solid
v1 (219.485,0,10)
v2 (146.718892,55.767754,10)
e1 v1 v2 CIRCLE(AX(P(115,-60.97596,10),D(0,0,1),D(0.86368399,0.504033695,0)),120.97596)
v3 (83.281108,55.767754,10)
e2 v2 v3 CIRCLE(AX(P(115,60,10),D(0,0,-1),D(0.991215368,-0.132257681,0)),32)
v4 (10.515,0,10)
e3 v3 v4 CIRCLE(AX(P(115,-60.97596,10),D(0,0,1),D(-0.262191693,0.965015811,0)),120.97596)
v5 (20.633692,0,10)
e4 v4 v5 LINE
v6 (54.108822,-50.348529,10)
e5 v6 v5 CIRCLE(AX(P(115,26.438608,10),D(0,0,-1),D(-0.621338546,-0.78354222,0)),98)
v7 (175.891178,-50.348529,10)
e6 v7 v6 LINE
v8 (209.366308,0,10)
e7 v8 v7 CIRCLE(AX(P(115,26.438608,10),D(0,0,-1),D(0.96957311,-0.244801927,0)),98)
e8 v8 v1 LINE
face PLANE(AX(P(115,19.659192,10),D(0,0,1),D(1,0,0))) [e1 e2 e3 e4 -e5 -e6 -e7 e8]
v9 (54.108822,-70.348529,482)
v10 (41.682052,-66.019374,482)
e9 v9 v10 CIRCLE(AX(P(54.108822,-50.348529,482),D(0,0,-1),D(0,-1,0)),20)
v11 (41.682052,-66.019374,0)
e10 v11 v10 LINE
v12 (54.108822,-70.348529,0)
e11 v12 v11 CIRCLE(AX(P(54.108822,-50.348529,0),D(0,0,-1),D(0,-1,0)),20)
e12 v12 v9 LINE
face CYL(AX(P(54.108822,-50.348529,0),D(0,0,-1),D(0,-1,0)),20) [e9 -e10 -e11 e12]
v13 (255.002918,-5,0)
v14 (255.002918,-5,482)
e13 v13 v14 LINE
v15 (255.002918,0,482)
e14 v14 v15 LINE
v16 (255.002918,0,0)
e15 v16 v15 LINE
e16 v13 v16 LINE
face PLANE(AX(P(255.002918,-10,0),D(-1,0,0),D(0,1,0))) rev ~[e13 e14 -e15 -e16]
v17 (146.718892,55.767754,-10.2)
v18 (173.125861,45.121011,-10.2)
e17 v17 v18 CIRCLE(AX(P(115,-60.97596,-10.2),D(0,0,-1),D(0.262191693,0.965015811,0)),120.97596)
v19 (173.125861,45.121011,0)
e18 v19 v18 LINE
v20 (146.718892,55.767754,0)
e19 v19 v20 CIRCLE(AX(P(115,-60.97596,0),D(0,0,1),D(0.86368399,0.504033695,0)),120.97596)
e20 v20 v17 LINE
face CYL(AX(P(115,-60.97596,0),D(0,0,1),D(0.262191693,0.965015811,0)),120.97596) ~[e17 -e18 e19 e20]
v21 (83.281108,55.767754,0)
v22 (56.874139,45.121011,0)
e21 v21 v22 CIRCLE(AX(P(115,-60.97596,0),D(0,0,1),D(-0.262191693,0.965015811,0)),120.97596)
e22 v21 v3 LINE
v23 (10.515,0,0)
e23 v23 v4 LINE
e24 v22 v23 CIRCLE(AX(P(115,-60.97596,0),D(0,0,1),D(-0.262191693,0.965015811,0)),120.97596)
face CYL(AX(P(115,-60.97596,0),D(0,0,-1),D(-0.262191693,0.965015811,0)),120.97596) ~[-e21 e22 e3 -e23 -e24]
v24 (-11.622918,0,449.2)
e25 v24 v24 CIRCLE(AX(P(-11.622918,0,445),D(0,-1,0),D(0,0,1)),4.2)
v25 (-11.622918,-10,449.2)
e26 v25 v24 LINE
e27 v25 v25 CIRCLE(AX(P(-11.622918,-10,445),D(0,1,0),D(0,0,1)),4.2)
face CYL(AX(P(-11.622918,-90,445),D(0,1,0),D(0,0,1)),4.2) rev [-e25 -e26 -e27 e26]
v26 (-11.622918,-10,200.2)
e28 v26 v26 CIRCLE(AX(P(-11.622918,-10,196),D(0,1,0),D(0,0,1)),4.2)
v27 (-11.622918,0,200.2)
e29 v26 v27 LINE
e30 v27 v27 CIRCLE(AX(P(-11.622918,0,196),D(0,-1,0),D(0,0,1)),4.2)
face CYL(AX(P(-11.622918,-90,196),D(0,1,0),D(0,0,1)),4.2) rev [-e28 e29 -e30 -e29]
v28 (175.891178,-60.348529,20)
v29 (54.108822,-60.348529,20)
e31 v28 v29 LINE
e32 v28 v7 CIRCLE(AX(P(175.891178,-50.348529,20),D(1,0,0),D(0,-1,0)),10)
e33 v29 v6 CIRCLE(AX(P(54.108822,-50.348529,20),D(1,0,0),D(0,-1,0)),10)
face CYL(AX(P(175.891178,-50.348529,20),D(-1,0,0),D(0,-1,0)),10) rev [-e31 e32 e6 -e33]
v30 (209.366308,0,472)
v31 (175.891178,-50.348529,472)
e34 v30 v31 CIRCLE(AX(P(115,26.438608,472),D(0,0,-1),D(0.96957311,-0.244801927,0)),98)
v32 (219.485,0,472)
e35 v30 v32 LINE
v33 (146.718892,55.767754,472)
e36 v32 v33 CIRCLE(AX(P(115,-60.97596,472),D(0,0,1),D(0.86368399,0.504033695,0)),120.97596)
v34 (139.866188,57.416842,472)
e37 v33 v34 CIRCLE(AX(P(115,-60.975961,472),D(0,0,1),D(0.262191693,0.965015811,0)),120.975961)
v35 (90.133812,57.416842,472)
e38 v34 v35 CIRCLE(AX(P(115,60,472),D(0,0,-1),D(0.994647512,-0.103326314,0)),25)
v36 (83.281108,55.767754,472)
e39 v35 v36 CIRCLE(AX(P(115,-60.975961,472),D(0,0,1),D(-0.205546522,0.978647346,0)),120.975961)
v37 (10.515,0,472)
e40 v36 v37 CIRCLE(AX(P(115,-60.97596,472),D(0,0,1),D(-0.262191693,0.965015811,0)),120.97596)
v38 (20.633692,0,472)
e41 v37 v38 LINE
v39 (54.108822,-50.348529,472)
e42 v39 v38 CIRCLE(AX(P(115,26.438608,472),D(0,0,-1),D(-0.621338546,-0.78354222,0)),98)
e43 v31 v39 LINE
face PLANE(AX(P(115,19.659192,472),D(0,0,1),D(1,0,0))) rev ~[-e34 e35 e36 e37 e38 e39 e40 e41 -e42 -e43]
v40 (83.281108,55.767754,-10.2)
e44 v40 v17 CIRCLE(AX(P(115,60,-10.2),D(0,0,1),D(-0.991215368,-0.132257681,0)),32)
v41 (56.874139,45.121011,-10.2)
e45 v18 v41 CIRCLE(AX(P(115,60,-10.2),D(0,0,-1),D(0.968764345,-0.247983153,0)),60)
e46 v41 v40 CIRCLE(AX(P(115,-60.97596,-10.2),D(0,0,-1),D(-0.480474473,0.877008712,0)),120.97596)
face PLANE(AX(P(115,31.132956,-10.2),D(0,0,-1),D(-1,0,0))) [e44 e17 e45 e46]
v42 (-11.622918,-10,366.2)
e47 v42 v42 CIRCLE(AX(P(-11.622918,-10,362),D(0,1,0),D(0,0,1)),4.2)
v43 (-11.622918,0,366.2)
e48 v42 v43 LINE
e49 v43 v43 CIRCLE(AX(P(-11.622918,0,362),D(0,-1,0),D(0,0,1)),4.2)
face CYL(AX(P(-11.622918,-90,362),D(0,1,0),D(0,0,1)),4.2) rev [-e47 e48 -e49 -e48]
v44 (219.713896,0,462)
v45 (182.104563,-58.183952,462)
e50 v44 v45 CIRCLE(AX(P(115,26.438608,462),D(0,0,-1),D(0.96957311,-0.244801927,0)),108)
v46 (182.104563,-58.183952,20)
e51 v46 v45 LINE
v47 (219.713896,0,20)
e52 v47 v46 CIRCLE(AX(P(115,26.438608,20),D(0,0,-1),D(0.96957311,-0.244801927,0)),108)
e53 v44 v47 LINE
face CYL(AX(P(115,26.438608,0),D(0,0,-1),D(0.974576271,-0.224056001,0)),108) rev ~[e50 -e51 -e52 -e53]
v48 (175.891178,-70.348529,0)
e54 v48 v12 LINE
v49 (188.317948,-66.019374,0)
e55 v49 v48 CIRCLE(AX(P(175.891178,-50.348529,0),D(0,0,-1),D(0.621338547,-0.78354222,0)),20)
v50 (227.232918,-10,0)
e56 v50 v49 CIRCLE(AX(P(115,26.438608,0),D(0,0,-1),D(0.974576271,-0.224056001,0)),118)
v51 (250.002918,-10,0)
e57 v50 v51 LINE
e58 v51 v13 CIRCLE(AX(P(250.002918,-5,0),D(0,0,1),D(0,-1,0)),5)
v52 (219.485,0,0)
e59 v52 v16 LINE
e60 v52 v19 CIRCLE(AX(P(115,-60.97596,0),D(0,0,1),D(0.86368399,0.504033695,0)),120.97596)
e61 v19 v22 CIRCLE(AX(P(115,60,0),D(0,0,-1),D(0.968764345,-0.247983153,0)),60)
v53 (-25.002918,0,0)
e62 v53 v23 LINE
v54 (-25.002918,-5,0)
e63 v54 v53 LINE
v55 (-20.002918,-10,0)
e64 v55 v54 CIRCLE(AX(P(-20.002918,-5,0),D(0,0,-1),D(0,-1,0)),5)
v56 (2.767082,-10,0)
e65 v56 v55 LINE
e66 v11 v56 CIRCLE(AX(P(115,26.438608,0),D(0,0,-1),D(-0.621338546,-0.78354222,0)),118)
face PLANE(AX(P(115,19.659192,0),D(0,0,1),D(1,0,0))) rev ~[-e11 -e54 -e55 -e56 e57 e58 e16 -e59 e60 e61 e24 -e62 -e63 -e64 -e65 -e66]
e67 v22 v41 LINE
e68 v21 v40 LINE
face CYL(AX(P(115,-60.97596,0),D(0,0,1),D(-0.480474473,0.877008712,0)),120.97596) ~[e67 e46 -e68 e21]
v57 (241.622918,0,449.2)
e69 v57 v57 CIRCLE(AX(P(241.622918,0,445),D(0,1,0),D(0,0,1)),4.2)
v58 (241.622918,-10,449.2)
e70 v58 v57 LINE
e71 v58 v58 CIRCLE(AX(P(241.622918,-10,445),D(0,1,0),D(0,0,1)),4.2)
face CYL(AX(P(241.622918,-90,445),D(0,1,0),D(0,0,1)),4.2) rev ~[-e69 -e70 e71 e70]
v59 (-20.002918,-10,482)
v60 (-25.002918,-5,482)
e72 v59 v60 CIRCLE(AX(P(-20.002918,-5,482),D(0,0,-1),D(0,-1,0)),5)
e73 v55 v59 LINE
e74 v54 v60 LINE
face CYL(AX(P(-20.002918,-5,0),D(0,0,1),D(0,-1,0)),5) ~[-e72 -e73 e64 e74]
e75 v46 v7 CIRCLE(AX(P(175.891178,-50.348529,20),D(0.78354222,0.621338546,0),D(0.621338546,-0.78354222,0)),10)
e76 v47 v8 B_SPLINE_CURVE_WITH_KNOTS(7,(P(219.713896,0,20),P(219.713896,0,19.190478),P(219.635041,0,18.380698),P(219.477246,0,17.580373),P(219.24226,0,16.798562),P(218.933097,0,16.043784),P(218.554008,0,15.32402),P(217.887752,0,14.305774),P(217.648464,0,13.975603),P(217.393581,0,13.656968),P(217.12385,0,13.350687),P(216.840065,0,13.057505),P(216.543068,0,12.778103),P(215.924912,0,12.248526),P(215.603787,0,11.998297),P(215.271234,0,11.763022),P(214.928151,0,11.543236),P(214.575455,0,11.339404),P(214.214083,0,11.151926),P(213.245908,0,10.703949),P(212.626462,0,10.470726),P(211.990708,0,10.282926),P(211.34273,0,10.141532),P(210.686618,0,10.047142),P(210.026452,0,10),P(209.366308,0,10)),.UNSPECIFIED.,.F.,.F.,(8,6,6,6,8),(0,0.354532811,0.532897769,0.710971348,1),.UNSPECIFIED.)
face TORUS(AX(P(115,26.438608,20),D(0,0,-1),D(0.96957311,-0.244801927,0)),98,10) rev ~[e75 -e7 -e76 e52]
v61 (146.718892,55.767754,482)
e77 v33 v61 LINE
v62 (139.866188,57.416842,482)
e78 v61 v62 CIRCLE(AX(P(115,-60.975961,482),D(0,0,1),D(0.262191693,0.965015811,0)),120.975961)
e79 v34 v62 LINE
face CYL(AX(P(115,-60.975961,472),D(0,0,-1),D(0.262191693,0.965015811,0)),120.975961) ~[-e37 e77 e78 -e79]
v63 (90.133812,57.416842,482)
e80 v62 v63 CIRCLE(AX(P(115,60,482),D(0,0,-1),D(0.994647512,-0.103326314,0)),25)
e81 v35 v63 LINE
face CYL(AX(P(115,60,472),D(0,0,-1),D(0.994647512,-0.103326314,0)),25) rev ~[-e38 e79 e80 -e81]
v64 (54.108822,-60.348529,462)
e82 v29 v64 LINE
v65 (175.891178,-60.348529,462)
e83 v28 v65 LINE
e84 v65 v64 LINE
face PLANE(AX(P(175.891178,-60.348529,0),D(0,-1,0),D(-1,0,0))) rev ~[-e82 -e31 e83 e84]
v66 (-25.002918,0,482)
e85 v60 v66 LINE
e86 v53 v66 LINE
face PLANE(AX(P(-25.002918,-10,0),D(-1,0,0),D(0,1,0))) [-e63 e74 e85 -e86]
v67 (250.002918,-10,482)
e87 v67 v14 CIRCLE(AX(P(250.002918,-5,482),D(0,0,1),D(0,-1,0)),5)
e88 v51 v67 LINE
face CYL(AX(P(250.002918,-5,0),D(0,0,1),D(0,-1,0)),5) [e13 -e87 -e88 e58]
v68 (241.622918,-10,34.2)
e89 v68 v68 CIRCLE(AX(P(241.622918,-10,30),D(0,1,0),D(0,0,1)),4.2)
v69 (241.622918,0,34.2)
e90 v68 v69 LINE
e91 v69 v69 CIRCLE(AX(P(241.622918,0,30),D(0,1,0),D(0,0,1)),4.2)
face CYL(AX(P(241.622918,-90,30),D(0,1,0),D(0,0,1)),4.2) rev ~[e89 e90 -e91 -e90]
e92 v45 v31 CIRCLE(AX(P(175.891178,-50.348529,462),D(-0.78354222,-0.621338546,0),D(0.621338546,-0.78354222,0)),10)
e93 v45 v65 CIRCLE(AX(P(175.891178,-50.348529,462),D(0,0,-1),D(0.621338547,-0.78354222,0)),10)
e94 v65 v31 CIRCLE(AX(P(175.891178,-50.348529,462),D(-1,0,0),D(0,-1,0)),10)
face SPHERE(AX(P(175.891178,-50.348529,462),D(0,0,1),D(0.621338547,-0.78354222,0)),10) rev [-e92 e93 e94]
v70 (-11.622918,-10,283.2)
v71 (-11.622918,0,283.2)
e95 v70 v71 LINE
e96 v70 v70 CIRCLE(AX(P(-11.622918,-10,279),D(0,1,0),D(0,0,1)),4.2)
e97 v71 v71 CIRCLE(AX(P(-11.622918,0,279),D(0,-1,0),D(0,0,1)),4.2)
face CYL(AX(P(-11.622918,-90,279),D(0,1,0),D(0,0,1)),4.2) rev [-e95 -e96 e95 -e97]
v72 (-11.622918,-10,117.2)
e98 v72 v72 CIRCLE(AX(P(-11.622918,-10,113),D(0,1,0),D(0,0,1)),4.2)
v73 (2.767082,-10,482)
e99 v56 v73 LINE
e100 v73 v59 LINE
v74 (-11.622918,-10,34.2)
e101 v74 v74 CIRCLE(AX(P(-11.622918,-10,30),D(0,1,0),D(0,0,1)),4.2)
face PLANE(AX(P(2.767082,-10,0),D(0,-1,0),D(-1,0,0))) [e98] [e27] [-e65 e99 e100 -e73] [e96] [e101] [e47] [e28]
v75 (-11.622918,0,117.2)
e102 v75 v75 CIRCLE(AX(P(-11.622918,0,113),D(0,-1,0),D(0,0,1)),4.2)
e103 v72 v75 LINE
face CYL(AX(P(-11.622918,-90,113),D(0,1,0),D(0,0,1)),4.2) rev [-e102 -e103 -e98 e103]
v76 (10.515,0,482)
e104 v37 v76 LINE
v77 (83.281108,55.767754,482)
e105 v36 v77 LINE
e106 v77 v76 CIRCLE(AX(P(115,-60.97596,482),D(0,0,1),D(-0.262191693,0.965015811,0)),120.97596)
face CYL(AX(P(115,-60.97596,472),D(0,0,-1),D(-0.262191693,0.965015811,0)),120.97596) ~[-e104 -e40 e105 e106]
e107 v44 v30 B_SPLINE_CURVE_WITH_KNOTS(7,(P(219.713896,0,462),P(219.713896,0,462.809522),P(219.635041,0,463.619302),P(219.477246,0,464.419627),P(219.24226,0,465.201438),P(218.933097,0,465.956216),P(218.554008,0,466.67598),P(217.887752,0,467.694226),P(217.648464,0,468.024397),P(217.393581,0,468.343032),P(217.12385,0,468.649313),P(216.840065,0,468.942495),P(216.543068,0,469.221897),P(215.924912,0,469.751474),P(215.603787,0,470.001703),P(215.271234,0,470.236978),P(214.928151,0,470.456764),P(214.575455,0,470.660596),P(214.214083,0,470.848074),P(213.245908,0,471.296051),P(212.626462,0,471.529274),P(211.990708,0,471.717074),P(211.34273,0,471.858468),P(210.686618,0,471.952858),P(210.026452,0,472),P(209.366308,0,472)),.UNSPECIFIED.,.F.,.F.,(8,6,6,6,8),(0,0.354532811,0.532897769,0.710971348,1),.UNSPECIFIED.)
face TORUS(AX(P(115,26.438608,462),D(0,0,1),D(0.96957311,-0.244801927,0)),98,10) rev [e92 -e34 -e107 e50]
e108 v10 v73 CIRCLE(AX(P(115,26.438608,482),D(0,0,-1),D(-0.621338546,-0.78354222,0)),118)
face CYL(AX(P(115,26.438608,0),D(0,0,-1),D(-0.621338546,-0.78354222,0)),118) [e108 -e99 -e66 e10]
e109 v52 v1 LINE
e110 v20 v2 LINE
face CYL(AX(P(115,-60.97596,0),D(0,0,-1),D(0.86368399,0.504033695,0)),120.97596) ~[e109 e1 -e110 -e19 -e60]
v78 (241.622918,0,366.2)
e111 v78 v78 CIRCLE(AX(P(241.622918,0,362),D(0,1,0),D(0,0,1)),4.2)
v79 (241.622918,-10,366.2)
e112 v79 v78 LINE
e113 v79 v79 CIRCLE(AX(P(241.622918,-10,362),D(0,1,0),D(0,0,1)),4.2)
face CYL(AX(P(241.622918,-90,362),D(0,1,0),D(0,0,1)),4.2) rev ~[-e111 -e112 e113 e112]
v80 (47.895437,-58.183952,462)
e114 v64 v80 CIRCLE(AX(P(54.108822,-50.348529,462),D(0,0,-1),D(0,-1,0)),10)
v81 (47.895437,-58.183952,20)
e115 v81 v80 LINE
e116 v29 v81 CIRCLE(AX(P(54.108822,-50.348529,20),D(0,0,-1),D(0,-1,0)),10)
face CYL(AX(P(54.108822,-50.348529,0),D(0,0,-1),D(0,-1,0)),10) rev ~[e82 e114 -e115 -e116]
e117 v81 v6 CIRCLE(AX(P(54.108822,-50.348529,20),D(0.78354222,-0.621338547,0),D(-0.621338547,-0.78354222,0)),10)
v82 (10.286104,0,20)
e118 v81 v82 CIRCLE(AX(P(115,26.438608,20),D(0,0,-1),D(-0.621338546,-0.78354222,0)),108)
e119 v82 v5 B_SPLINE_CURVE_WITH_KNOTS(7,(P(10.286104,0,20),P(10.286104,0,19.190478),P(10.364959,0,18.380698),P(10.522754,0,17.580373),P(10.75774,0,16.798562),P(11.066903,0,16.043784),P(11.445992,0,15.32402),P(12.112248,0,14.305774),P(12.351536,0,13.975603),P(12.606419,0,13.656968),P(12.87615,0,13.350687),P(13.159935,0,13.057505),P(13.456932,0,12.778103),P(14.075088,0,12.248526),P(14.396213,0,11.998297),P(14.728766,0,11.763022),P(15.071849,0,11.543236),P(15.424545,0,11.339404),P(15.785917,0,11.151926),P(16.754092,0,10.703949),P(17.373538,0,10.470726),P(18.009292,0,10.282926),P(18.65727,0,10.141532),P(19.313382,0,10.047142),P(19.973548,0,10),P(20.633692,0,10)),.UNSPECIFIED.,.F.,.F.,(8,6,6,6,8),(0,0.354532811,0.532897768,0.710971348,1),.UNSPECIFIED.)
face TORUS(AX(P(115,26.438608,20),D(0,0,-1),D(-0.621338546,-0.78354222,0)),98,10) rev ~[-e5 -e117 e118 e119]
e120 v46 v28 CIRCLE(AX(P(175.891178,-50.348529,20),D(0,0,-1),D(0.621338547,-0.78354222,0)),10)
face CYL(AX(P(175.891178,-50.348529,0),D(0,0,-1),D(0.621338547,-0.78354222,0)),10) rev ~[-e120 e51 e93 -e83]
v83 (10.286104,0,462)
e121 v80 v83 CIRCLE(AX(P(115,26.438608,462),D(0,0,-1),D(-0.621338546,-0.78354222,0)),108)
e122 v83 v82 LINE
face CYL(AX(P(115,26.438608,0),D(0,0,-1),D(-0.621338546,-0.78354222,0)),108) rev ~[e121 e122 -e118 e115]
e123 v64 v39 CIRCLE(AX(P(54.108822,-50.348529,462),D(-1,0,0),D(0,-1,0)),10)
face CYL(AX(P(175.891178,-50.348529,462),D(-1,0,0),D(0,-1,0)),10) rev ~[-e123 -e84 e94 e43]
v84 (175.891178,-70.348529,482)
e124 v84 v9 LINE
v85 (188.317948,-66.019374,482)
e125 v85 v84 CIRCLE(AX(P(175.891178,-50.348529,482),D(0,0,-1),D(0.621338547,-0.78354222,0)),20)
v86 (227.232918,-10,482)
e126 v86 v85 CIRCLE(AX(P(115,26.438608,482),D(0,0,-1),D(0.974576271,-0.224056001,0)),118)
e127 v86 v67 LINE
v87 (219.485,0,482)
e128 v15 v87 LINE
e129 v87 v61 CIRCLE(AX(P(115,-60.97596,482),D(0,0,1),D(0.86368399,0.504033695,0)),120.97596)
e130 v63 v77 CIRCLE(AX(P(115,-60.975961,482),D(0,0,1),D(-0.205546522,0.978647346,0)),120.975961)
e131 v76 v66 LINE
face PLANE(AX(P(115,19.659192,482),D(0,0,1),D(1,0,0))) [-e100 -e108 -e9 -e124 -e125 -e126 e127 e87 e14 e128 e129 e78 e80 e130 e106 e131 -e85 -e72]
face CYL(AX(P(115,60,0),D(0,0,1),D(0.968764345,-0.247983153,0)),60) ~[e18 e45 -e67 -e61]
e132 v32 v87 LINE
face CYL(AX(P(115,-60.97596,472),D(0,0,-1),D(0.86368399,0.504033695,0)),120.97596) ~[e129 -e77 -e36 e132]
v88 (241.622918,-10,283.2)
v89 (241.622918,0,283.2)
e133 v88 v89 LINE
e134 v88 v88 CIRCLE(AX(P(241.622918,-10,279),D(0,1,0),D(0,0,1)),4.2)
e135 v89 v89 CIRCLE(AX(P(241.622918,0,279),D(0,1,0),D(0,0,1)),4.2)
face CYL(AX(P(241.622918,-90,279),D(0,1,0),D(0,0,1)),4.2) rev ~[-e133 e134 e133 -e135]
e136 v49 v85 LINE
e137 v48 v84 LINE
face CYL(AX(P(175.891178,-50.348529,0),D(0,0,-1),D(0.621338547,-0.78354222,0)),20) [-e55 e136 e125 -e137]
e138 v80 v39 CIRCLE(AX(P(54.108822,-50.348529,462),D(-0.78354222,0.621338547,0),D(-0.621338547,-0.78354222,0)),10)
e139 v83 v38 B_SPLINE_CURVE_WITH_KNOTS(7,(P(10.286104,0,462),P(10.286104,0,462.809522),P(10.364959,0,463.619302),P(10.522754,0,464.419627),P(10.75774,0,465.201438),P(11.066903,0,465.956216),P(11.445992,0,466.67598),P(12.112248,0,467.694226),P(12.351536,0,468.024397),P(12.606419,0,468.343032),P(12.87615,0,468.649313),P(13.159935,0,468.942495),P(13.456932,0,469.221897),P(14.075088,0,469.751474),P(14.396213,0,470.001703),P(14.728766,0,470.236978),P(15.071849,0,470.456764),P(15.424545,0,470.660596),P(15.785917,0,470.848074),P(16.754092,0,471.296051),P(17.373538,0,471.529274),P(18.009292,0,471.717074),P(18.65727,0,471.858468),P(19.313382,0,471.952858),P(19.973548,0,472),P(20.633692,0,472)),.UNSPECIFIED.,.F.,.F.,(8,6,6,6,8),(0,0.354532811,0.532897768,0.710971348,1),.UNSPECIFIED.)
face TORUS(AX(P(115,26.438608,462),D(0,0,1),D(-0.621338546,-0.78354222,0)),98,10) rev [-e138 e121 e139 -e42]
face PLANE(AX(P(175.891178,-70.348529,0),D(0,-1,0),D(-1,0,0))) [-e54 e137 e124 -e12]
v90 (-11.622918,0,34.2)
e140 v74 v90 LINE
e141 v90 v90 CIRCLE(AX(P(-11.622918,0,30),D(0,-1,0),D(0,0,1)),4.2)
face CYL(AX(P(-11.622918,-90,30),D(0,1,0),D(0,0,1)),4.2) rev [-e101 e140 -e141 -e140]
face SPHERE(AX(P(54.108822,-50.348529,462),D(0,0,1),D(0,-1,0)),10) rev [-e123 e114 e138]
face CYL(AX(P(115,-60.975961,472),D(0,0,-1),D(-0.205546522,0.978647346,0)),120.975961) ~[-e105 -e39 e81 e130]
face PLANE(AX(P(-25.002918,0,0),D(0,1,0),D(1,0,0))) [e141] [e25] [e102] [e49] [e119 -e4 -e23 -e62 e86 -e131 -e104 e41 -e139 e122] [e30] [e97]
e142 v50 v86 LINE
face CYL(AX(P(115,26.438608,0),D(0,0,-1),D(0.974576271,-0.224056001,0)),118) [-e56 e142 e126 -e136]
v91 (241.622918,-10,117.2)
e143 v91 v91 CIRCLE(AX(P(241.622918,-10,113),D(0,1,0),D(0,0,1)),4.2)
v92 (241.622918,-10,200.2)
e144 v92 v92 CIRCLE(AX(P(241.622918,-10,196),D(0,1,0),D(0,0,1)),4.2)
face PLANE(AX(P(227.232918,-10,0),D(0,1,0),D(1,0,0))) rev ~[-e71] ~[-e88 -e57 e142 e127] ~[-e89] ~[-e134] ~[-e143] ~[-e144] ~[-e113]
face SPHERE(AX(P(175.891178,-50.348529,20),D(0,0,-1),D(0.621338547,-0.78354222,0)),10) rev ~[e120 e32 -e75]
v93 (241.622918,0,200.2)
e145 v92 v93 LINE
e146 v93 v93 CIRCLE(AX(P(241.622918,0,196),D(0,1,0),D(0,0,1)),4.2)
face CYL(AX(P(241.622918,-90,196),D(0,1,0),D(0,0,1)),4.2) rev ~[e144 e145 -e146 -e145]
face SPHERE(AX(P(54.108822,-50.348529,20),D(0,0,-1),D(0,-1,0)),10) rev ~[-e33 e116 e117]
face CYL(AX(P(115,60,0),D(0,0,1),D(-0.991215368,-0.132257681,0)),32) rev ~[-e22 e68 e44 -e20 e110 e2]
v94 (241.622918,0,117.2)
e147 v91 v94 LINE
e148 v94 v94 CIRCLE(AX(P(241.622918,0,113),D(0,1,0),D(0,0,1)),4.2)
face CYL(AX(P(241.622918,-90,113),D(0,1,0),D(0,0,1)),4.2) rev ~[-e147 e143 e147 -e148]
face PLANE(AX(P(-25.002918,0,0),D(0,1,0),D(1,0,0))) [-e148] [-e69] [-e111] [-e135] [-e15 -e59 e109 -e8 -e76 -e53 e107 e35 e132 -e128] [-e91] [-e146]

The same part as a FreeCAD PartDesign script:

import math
import FreeCAD as App
import Part
import Sketcher
Q = App.Units.Quantity


def edges_at(feature, points):
    """Names of the edges that pass closest to the given points."""
    edges = feature.Shape.Edges
    near = lambda p: min(range(len(edges)), key=lambda i: edges[i].distToShape(Part.Vertex(*p))[0])
    return sorted({f"Edge{near(p) + 1}" for p in points})


def faces_at(feature, points):
    """Names of the faces that lie closest to the given points."""
    faces = feature.Shape.Faces
    near = lambda p: min(range(len(faces)), key=lambda i: faces[i].distToShape(Part.Vertex(*p))[0])
    return sorted({f"Face{near(p) + 1}" for p in points})


def add_polygon(sketch, points):
    """Adds a closed chain of lines whose ends are joined by coincident constraints."""
    first, n = sketch.GeometryCount, len(points)
    for a, b in zip(points, points[1:] + points[:1]):
        sketch.addGeometry(Part.LineSegment(App.Vector(*a, 0), App.Vector(*b, 0)), False)
    for i in range(n):
        sketch.addConstraint(Sketcher.Constraint("Coincident", first + i, 2, first + (i + 1) % n, 1))

doc = App.newDocument("Part")
params = doc.addObject("Spreadsheet::Sheet", "Params")
for row, (alias, value) in enumerate([
    ("sketch1_radius", "118 mm"),
    ("sketch1_radius2", "20 mm"),
    ("sketch1_width", "230 mm"),
    ("pad1_length", "482 mm"),
    ("thickness_wall", "10 mm"),
    ("fillet_radius", "10 mm"),
    ("fillet2_radius", "10 mm"),
    ("sketch2_radius", "118.000001 mm"),
    ("sketch2_height", "10 mm"),
    ("sketch2_width", "27.77 mm"),
    ("pad2_length", "482 mm"),
    ("fillet3_radius", "5 mm"),
    ("sketch3_radius", "32 mm"),
    ("sketch3_width", "208.97 mm"),
    ("pad3_length", "10 mm"),
    ("sketch4_radius", "60 mm"),
    ("sketch4_radius2", "32 mm"),
    ("pad4_length", "10.2 mm"),
    ("sketch5_radius", "25 mm"),
    ("sketch5_width", "208.97 mm"),
    ("pad5_length", "10 mm"),
    ("sketch6_width", "90 mm"),
    ("sketch6_height", "4.2 mm"),
    ("groove_angle", "360 deg"),
    ("linearpattern_pitch", "83 mm"),
    ("linearpattern2_pitch", "166 mm"),
    ("linearpattern3_pitch", "249 mm"),
    ("linearpattern4_pitch", "332 mm"),
    ("linearpattern5_pitch", "415 mm"),
    ("sketch7_width", "90 mm"),
    ("sketch7_height", "4.2 mm"),
    ("groove2_angle", "360 deg"),
    ("sketch8_width", "90 mm"),
    ("sketch8_height", "4.2 mm"),
    ("groove3_angle", "360 deg"),
    ("sketch9_width", "90 mm"),
    ("sketch9_height", "4.2 mm"),
    ("groove4_angle", "360 deg"),
    ("sketch10_width", "90 mm"),
    ("sketch10_height", "4.2 mm"),
    ("groove5_angle", "360 deg"),
    ("sketch11_width", "90 mm"),
    ("sketch11_height", "4.2 mm"),
    ("groove6_angle", "360 deg"),
], start=1):
    params.set(f"A{row}", alias)
    params.set(f"B{row}", "=" + value)
    params.setAlias(f"B{row}", alias)

body = doc.addObject("PartDesign::Body", "Body")

sketch1 = doc.addObject("Sketcher::SketchObject", "Sketch")
body.addObject(sketch1)
sketch1.AttachmentSupport = (doc.XY_Plane, [""])
sketch1.MapMode = "FlatFace"
sketch1.addGeometry(Part.LineSegment(App.Vector(230, 0, 0), App.Vector(0, 0, 0)), False)
sketch1.addGeometry(Part.ArcOfCircle(Part.Circle(App.Vector(115, 26, 0), App.Vector(0, 0, 1), 118), math.radians(-167), math.radians(-128)), False)
sketch1.addGeometry(Part.ArcOfCircle(Part.Circle(App.Vector(54, -50, 0), App.Vector(0, 0, 1), 20), math.radians(-128), math.radians(-90)), False)
sketch1.addGeometry(Part.LineSegment(App.Vector(54, -70, 0), App.Vector(176, -70, 0)), False)
sketch1.addGeometry(Part.ArcOfCircle(Part.Circle(App.Vector(176, -50, 0), App.Vector(0, 0, 1), 20), math.radians(-90), math.radians(-52)), False)
sketch1.addGeometry(Part.ArcOfCircle(Part.Circle(App.Vector(115, 26, 0), App.Vector(0, 0, 1), 118), math.radians(-52), math.radians(-13)), False)
sketch1.addConstraint(Sketcher.Constraint("Coincident", 0, 2, 1, 1))
sketch1.addConstraint(Sketcher.Constraint("Tangent", 1, 2, 2, 1))
sketch1.addConstraint(Sketcher.Constraint("Tangent", 2, 2, 3, 1))
sketch1.addConstraint(Sketcher.Constraint("Tangent", 3, 2, 4, 1))
sketch1.addConstraint(Sketcher.Constraint("Tangent", 4, 2, 5, 1))
sketch1.addConstraint(Sketcher.Constraint("Coincident", 5, 2, 0, 1))
sketch1.addConstraint(Sketcher.Constraint("Horizontal", 0))
sketch1.addConstraint(Sketcher.Constraint("Horizontal", 3))
sketch1.addConstraint(Sketcher.Constraint("Coincident", 0, 2, -1, 1))
sketch1.addConstraint(Sketcher.Constraint("Coincident", 5, 3, 1, 3))
sketch1.addConstraint(Sketcher.Constraint("Equal", 2, 4))
sketch1.addConstraint(Sketcher.Constraint("Equal", 1, 5))
sketch1.addConstraint(Sketcher.Constraint("Radius", 1, Q("118 mm")))
sketch1.addConstraint(Sketcher.Constraint("Radius", 2, Q("20 mm")))
sketch1.addConstraint(Sketcher.Constraint("DistanceX", 0, 2, 0, 1, Q("230 mm")))
sketch1.addConstraint(Sketcher.Constraint("DistanceX", 3, 1, 3, 2, Q("121.782355 mm")))
sketch1.setExpression("Constraints[12]", "Params.sketch1_radius")
sketch1.setExpression("Constraints[13]", "Params.sketch1_radius2")
sketch1.setExpression("Constraints[14]", "Params.sketch1_width")
pad1 = doc.addObject("PartDesign::Pad", "Pad")
body.addObject(pad1)
pad1.Profile = sketch1
pad1.setExpression("Length", "Params.pad1_length")
doc.recompute()

thickness = doc.addObject("PartDesign::Thickness", "Thickness")
body.addObject(thickness)
thickness.Base = (pad1, faces_at(pad1, [(115, 0, 241)]))
thickness.setExpression("Value", "Params.thickness_wall")
thickness.Reversed = True
thickness.Join = "Intersection"
doc.recompute()

fillet = doc.addObject("PartDesign::Fillet", "Fillet")
body.addObject(fillet)
fillet.Base = (thickness, edges_at(thickness, [
    (24.299, -32.19, 472),
    (50.819, -59.792, 472),
    (115, -60.349, 472),
    (179.181, -59.792, 472),
    (205.701, -32.19, 472),
]))
fillet.setExpression("Radius", "Params.fillet_radius")
doc.recompute()

fillet2 = doc.addObject("PartDesign::Fillet", "Fillet001")
body.addObject(fillet2)
fillet2.Base = (fillet, edges_at(fillet, [
    (24.299, -32.19, 10),
    (50.819, -59.792, 10),
    (115, -60.349, 10),
    (179.181, -59.792, 10),
    (205.701, -32.19, 10),
]))
fillet2.setExpression("Radius", "Params.fillet2_radius")

sketch2 = doc.addObject("Sketcher::SketchObject", "Sketch001")
body.addObject(sketch2)
sketch2.AttachmentSupport = (doc.XY_Plane, [""])
sketch2.MapMode = "FlatFace"
sketch2.addGeometry(Part.LineSegment(App.Vector(-25, -10, 0), App.Vector(3, -10, 0)), False)
sketch2.addGeometry(Part.ArcOfCircle(Part.Circle(App.Vector(115, 26, 0), App.Vector(0, 0, 1), 118), math.radians(-167.05), math.radians(-162.01)), False)
sketch2.addGeometry(Part.LineSegment(App.Vector(0, 0, 0), App.Vector(-25, 0, 0)), False)
sketch2.addGeometry(Part.LineSegment(App.Vector(-25, 0, 0), App.Vector(-25, -10, 0)), False)
sketch2.addGeometry(Part.LineSegment(App.Vector(255, 0, 0), App.Vector(230, 0, 0)), False)
sketch2.addGeometry(Part.ArcOfCircle(Part.Circle(App.Vector(115, 26, 0), App.Vector(0, 0, 1), 118), math.radians(-17.99), math.radians(-12.95)), False)
sketch2.addGeometry(Part.LineSegment(App.Vector(227, -10, 0), App.Vector(255, -10, 0)), False)
sketch2.addGeometry(Part.LineSegment(App.Vector(255, -10, 0), App.Vector(255, 0, 0)), False)
sketch2.addConstraint(Sketcher.Constraint("Coincident", 0, 2, 1, 2))
sketch2.addConstraint(Sketcher.Constraint("Coincident", 1, 1, 2, 1))
sketch2.addConstraint(Sketcher.Constraint("Coincident", 2, 2, 3, 1))
sketch2.addConstraint(Sketcher.Constraint("Coincident", 3, 2, 0, 1))
sketch2.addConstraint(Sketcher.Constraint("Coincident", 4, 2, 5, 2))
sketch2.addConstraint(Sketcher.Constraint("Coincident", 5, 1, 6, 1))
sketch2.addConstraint(Sketcher.Constraint("Coincident", 6, 2, 7, 1))
sketch2.addConstraint(Sketcher.Constraint("Coincident", 7, 2, 4, 1))
sketch2.addConstraint(Sketcher.Constraint("Horizontal", 0))
sketch2.addConstraint(Sketcher.Constraint("Horizontal", 2))
sketch2.addConstraint(Sketcher.Constraint("Vertical", 3))
sketch2.addConstraint(Sketcher.Constraint("Horizontal", 4))
sketch2.addConstraint(Sketcher.Constraint("Horizontal", 6))
sketch2.addConstraint(Sketcher.Constraint("Vertical", 7))
sketch2.addConstraint(Sketcher.Constraint("Coincident", 1, 1, -1, 1))
sketch2.addConstraint(Sketcher.Constraint("Coincident", 5, 3, 1, 3))
sketch2.addConstraint(Sketcher.Constraint("Equal", 1, 5))
sketch2.addConstraint(Sketcher.Constraint("PointOnObject", 4, 2, -1))
sketch2.addConstraint(Sketcher.Constraint("Horizontal", 3, 2, 5, 1))
sketch2.addConstraint(Sketcher.Constraint("Equal", 2, 4))
sketch2.addConstraint(Sketcher.Constraint("Radius", 1, Q("118.000001 mm")))
sketch2.addConstraint(Sketcher.Constraint("DistanceY", 3, 2, 3, 1, Q("10 mm")))
sketch2.addConstraint(Sketcher.Constraint("DistanceX", -1, 1, 1, 3, Q("115.000001 mm")))
sketch2.addConstraint(Sketcher.Constraint("DistanceX", 0, 1, 0, 2, Q("27.77 mm")))
sketch2.setExpression("Constraints[20]", "Params.sketch2_radius")
sketch2.setExpression("Constraints[21]", "Params.sketch2_height")
sketch2.setExpression("Constraints[23]", "Params.sketch2_width")
pad2 = doc.addObject("PartDesign::Pad", "Pad001")
body.addObject(pad2)
pad2.Profile = sketch2
pad2.setExpression("Length", "Params.pad2_length")
doc.recompute()

fillet3 = doc.addObject("PartDesign::Fillet", "Fillet002")
body.addObject(fillet3)
fillet3.Base = (pad2, edges_at(pad2, [(-25.003, -10, 241), (255.003, -10, 241)]))
fillet3.setExpression("Radius", "Params.fillet3_radius")
body2 = doc.addObject("PartDesign::Body", "Body001")

sketch3 = doc.addObject("Sketcher::SketchObject", "Sketch002")
body2.addObject(sketch3)
sketch3.AttachmentSupport = (doc.getObject("XY_Plane001"), [""])
sketch3.MapMode = "FlatFace"
sketch3.addGeometry(Part.LineSegment(App.Vector(219, 0, 0), App.Vector(11, 0, 0)), False)
sketch3.addGeometry(Part.ArcOfCircle(Part.Circle(App.Vector(115, -61, 0), App.Vector(0, 0, 1), 121), math.radians(105), math.radians(150)), False)
sketch3.addGeometry(Part.ArcOfCircle(Part.Circle(App.Vector(115, 60, 0), App.Vector(0, 0, 1), 32), math.radians(-172), math.radians(-8)), False)
sketch3.addGeometry(Part.ArcOfCircle(Part.Circle(App.Vector(115, -61, 0), App.Vector(0, 0, 1), 121), math.radians(30), math.radians(75)), False)
sketch3.addConstraint(Sketcher.Constraint("Coincident", 0, 2, 1, 2))
sketch3.addConstraint(Sketcher.Constraint("Coincident", 1, 1, 2, 1))
sketch3.addConstraint(Sketcher.Constraint("Coincident", 2, 2, 3, 2))
sketch3.addConstraint(Sketcher.Constraint("Coincident", 3, 1, 0, 1))
sketch3.addConstraint(Sketcher.Constraint("Horizontal", 0))
sketch3.addConstraint(Sketcher.Constraint("Coincident", 3, 3, 1, 3))
sketch3.addConstraint(Sketcher.Constraint("Equal", 1, 3))
sketch3.addConstraint(Sketcher.Constraint("PointOnObject", 0, 2, -1))
sketch3.addConstraint(Sketcher.Constraint("Horizontal", 1, 1, 2, 2))
sketch3.addConstraint(Sketcher.Constraint("Radius", 2, Q("32 mm")))
sketch3.addConstraint(Sketcher.Constraint("DistanceX", -1, 1, 1, 3, Q("115 mm")))
sketch3.addConstraint(Sketcher.Constraint("DistanceY", -1, 1, 2, 3, Q("60 mm")))
sketch3.addConstraint(Sketcher.Constraint("DistanceX", 0, 2, 0, 1, Q("208.97 mm")))
sketch3.addConstraint(Sketcher.Constraint("Radius", 1, Q("120.97596 mm")))
sketch3.setExpression("Constraints[9]", "Params.sketch3_radius")
sketch3.setExpression("Constraints[12]", "Params.sketch3_width")
pad3 = doc.addObject("PartDesign::Pad", "Pad002")
body2.addObject(pad3)
pad3.Profile = sketch3
pad3.setExpression("Length", "Params.pad3_length")
doc.recompute()

boolean = doc.addObject("PartDesign::Boolean", "Boolean")
body.addObject(boolean)
boolean.Type = "Fuse"
boolean.addObjects([body2])

sketch4 = doc.addObject("Sketcher::SketchObject", "Sketch003")
body.addObject(sketch4)
sketch4.AttachmentSupport = (doc.XY_Plane, [""])
sketch4.MapMode = "FlatFace"
sketch4.addGeometry(Part.ArcOfCircle(Part.Circle(App.Vector(115, 60, 0), App.Vector(0, 0, 1), 60), math.radians(-166), math.radians(-14)), False)
sketch4.addGeometry(Part.ArcOfCircle(Part.Circle(App.Vector(115, -61, 0), App.Vector(0, 0, 1), 121), math.radians(105.2), math.radians(118.72)), False)
sketch4.addGeometry(Part.ArcOfCircle(Part.Circle(App.Vector(115, 60, 0), App.Vector(0, 0, 1), 32), math.radians(-172), math.radians(-8)), False)
sketch4.addGeometry(Part.ArcOfCircle(Part.Circle(App.Vector(115, -61, 0), App.Vector(0, 0, 1), 121), math.radians(61.28), math.radians(74.8)), False)
sketch4.addConstraint(Sketcher.Constraint("Coincident", 0, 1, 1, 2))
sketch4.addConstraint(Sketcher.Constraint("Coincident", 1, 1, 2, 1))
sketch4.addConstraint(Sketcher.Constraint("Coincident", 2, 2, 3, 2))
sketch4.addConstraint(Sketcher.Constraint("Coincident", 3, 1, 0, 2))
sketch4.addConstraint(Sketcher.Constraint("Coincident", 2, 3, 0, 3))
sketch4.addConstraint(Sketcher.Constraint("Coincident", 3, 3, 1, 3))
sketch4.addConstraint(Sketcher.Constraint("Equal", 1, 3))
sketch4.addConstraint(Sketcher.Constraint("Horizontal", 1, 1, 2, 2))
sketch4.addConstraint(Sketcher.Constraint("Radius", 0, Q("60 mm")))
sketch4.addConstraint(Sketcher.Constraint("Radius", 2, Q("32 mm")))
sketch4.addConstraint(Sketcher.Constraint("DistanceX", -1, 1, 0, 3, Q("115 mm")))
sketch4.addConstraint(Sketcher.Constraint("DistanceY", -1, 1, 0, 3, Q("60 mm")))
sketch4.addConstraint(Sketcher.Constraint("Radius", 1, Q("120.97596 mm")))
sketch4.addConstraint(Sketcher.Constraint("DistanceY", 1, 3, -1, 1, Q("60.97596 mm")))
sketch4.setExpression("Constraints[8]", "Params.sketch4_radius")
sketch4.setExpression("Constraints[9]", "Params.sketch4_radius2")
pad4 = doc.addObject("PartDesign::Pad", "Pad003")
body.addObject(pad4)
pad4.Profile = sketch4
pad4.setExpression("Length", "Params.pad4_length")
pad4.Reversed = True

sketch5 = doc.addObject("Sketcher::SketchObject", "Sketch004")
body.addObject(sketch5)
sketch5.AttachmentSupport = (doc.XY_Plane, [""])
sketch5.MapMode = "FlatFace"
sketch5.AttachmentOffset = App.Placement(App.Vector(0, 0, 472), App.Rotation())
sketch5.addGeometry(Part.ArcOfCircle(Part.Circle(App.Vector(115, -61, 0), App.Vector(0, 0, 1), 121), math.radians(105), math.radians(150)), False)
sketch5.addGeometry(Part.LineSegment(App.Vector(11, 0, 0), App.Vector(219, 0, 0)), False)
sketch5.addGeometry(Part.ArcOfCircle(Part.Circle(App.Vector(115, -61, 0), App.Vector(0, 0, 1), 121), math.radians(30), math.radians(75)), False)
sketch5.addGeometry(Part.ArcOfCircle(Part.Circle(App.Vector(115, -61, 0), App.Vector(0, 0, 1), 121), math.radians(74.8), math.radians(78.14)), False)
sketch5.addGeometry(Part.ArcOfCircle(Part.Circle(App.Vector(115, 60, 0), App.Vector(0, 0, 1), 25), math.radians(-174), math.radians(-6)), False)
sketch5.addGeometry(Part.ArcOfCircle(Part.Circle(App.Vector(115, -61, 0), App.Vector(0, 0, 1), 121), math.radians(101.86), math.radians(105.2)), False)
sketch5.addConstraint(Sketcher.Constraint("Coincident", 0, 2, 1, 1))
sketch5.addConstraint(Sketcher.Constraint("Coincident", 1, 2, 2, 1))
sketch5.addConstraint(Sketcher.Constraint("Tangent", 2, 2, 3, 1))
sketch5.addConstraint(Sketcher.Constraint("Coincident", 3, 2, 4, 2))
sketch5.addConstraint(Sketcher.Constraint("Coincident", 4, 1, 5, 1))
sketch5.addConstraint(Sketcher.Constraint("Tangent", 5, 2, 0, 1))
sketch5.addConstraint(Sketcher.Constraint("Horizontal", 1))
sketch5.addConstraint(Sketcher.Constraint("Coincident", 2, 3, 0, 3))
sketch5.addConstraint(Sketcher.Constraint("Equal", 0, 2))
sketch5.addConstraint(Sketcher.Constraint("Equal", 2, 3))
sketch5.addConstraint(Sketcher.Constraint("Equal", 3, 5))
sketch5.addConstraint(Sketcher.Constraint("PointOnObject", 0, 2, -1))
sketch5.addConstraint(Sketcher.Constraint("Horizontal", 3, 2, 4, 1))
sketch5.addConstraint(Sketcher.Constraint("Horizontal", 2, 2, 5, 2))
sketch5.addConstraint(Sketcher.Constraint("Radius", 4, Q("25 mm")))
sketch5.addConstraint(Sketcher.Constraint("DistanceX", -1, 1, 0, 3, Q("115 mm")))
sketch5.addConstraint(Sketcher.Constraint("DistanceY", -1, 1, 4, 3, Q("60 mm")))
sketch5.addConstraint(Sketcher.Constraint("DistanceX", 1, 1, 1, 2, Q("208.97 mm")))
sketch5.addConstraint(Sketcher.Constraint("Radius", 0, Q("120.97596 mm")))
sketch5.addConstraint(Sketcher.Constraint("DistanceX", -1, 1, 2, 2, Q("146.718892 mm")))
sketch5.setExpression("Constraints[14]", "Params.sketch5_radius")
sketch5.setExpression("Constraints[17]", "Params.sketch5_width")
pad5 = doc.addObject("PartDesign::Pad", "Pad004")
body.addObject(pad5)
pad5.Profile = sketch5
pad5.setExpression("Length", "Params.pad5_length")

sketch6 = doc.addObject("Sketcher::SketchObject", "Sketch005")
body.addObject(sketch6)
sketch6.AttachmentSupport = (doc.YZ_Plane, [""])
sketch6.MapMode = "FlatFace"
sketch6.AttachmentOffset = App.Placement(App.Vector(0, 0, -11.622918), App.Rotation())
add_polygon(sketch6, [(-92.5, 30), (0, 30), (0, 34.2), (-90, 34.2)])
sketch6.addGeometry(Part.LineSegment(App.Vector(0, 30, 0), App.Vector(-92.5, 30, 0)), True)
sketch6.addConstraint(Sketcher.Constraint("Horizontal", 0))
sketch6.addConstraint(Sketcher.Constraint("Vertical", 1))
sketch6.addConstraint(Sketcher.Constraint("Horizontal", 2))
sketch6.addConstraint(Sketcher.Constraint("Horizontal", 4))
sketch6.addConstraint(Sketcher.Constraint("Coincident", 4, 1, 0, 2))
sketch6.addConstraint(Sketcher.Constraint("PointOnObject", 0, 2, -2))
sketch6.addConstraint(Sketcher.Constraint("Equal", 0, 4))
sketch6.addConstraint(Sketcher.Constraint("DistanceX", 2, 2, 2, 1, Q("90 mm")))
sketch6.addConstraint(Sketcher.Constraint("Angle", 3, Q("-121 deg")))
sketch6.addConstraint(Sketcher.Constraint("DistanceY", 1, 1, 1, 2, Q("4.2 mm")))
sketch6.addConstraint(Sketcher.Constraint("DistanceY", -1, 1, 0, 2, Q("30 mm")))
sketch6.setExpression("Constraints[11]", "Params.sketch6_width")
sketch6.setExpression("Constraints[13]", "Params.sketch6_height")
groove = doc.addObject("PartDesign::Groove", "Groove")
body.addObject(groove)
groove.Profile = sketch6
groove.ReferenceAxis = (sketch6, ["Axis0"])
groove.setExpression("Angle", "Params.groove_angle")
doc.recompute()

linearpattern = doc.addObject("PartDesign::LinearPattern", "LinearPattern")
body.addObject(linearpattern)
linearpattern.Originals = [groove]
linearpattern.Direction = (doc.Z_Axis, [""])
linearpattern.Mode = "offset"
linearpattern.setExpression("Offset", "Params.linearpattern_pitch")
linearpattern.Occurrences = 2
body.Tip = linearpattern
doc.recompute()

linearpattern2 = doc.addObject("PartDesign::LinearPattern", "LinearPattern001")
body.addObject(linearpattern2)
linearpattern2.Originals = [groove]
linearpattern2.Direction = (doc.Z_Axis, [""])
linearpattern2.Mode = "offset"
linearpattern2.setExpression("Offset", "Params.linearpattern2_pitch")
linearpattern2.Occurrences = 2
body.Tip = linearpattern2
doc.recompute()

linearpattern3 = doc.addObject("PartDesign::LinearPattern", "LinearPattern002")
body.addObject(linearpattern3)
linearpattern3.Originals = [groove]
linearpattern3.Direction = (doc.Z_Axis, [""])
linearpattern3.Mode = "offset"
linearpattern3.setExpression("Offset", "Params.linearpattern3_pitch")
linearpattern3.Occurrences = 2
body.Tip = linearpattern3
doc.recompute()

linearpattern4 = doc.addObject("PartDesign::LinearPattern", "LinearPattern003")
body.addObject(linearpattern4)
linearpattern4.Originals = [groove]
linearpattern4.Direction = (doc.Z_Axis, [""])
linearpattern4.Mode = "offset"
linearpattern4.setExpression("Offset", "Params.linearpattern4_pitch")
linearpattern4.Occurrences = 2
body.Tip = linearpattern4
doc.recompute()

linearpattern5 = doc.addObject("PartDesign::LinearPattern", "LinearPattern004")
body.addObject(linearpattern5)
linearpattern5.Originals = [groove]
linearpattern5.Direction = (doc.Z_Axis, [""])
linearpattern5.Mode = "offset"
linearpattern5.setExpression("Offset", "Params.linearpattern5_pitch")
linearpattern5.Occurrences = 2
body.Tip = linearpattern5
doc.recompute()

datumplane = doc.addObject("PartDesign::Plane", "DatumPlane")
body.addObject(datumplane)
datumplane.AttachmentSupport = (doc.YZ_Plane, [""])
datumplane.MapMode = "FlatFace"
datumplane.AttachmentOffset = App.Placement(App.Vector(0, 0, 115), App.Rotation())
mirrored = doc.addObject("PartDesign::Mirrored", "Mirrored")
body.addObject(mirrored)
mirrored.Originals = [groove]
mirrored.MirrorPlane = (datumplane, [""])
body.Tip = mirrored

sketch7 = doc.addObject("Sketcher::SketchObject", "Sketch006")
body.addObject(sketch7)
sketch7.AttachmentSupport = (doc.YZ_Plane, [""])
sketch7.MapMode = "FlatFace"
sketch7.AttachmentOffset = App.Placement(App.Vector(0, 0, 241.622918), App.Rotation())
add_polygon(sketch7, [(0, 113), (-92.5, 113), (-90, 117.2), (0, 117.2)])
sketch7.addGeometry(Part.LineSegment(App.Vector(-92.5, 113, 0), App.Vector(0, 113, 0)), True)
sketch7.addConstraint(Sketcher.Constraint("Horizontal", 0))
sketch7.addConstraint(Sketcher.Constraint("Horizontal", 2))
sketch7.addConstraint(Sketcher.Constraint("Vertical", 3))
sketch7.addConstraint(Sketcher.Constraint("Horizontal", 4))
sketch7.addConstraint(Sketcher.Constraint("Coincident", 4, 1, 0, 2))
sketch7.addConstraint(Sketcher.Constraint("PointOnObject", 2, 2, -2))
sketch7.addConstraint(Sketcher.Constraint("PointOnObject", 4, 2, -2))
sketch7.addConstraint(Sketcher.Constraint("DistanceX", 2, 1, 2, 2, Q("90 mm")))
sketch7.addConstraint(Sketcher.Constraint("Angle", 1, Q("59 deg")))
sketch7.addConstraint(Sketcher.Constraint("DistanceY", 3, 2, 3, 1, Q("4.2 mm")))
sketch7.addConstraint(Sketcher.Constraint("DistanceY", -1, 1, 0, 2, Q("113 mm")))
sketch7.setExpression("Constraints[11]", "Params.sketch7_width")
sketch7.setExpression("Constraints[13]", "Params.sketch7_height")
groove2 = doc.addObject("PartDesign::Groove", "Groove001")
body.addObject(groove2)
groove2.Profile = sketch7
groove2.ReferenceAxis = (sketch7, ["Axis0"])
groove2.setExpression("Angle", "Params.groove2_angle")

sketch8 = doc.addObject("Sketcher::SketchObject", "Sketch007")
body.addObject(sketch8)
sketch8.AttachmentSupport = (doc.YZ_Plane, [""])
sketch8.MapMode = "FlatFace"
sketch8.AttachmentOffset = App.Placement(App.Vector(0, 0, 241.622918), App.Rotation())
add_polygon(sketch8, [(0, 196), (-92.5, 196), (-90, 200.2), (0, 200.2)])
sketch8.addGeometry(Part.LineSegment(App.Vector(-92.5, 196, 0), App.Vector(0, 196, 0)), True)
sketch8.addConstraint(Sketcher.Constraint("Horizontal", 0))
sketch8.addConstraint(Sketcher.Constraint("Horizontal", 2))
sketch8.addConstraint(Sketcher.Constraint("Vertical", 3))
sketch8.addConstraint(Sketcher.Constraint("Horizontal", 4))
sketch8.addConstraint(Sketcher.Constraint("Coincident", 4, 1, 0, 2))
sketch8.addConstraint(Sketcher.Constraint("PointOnObject", 2, 2, -2))
sketch8.addConstraint(Sketcher.Constraint("PointOnObject", 4, 2, -2))
sketch8.addConstraint(Sketcher.Constraint("DistanceX", 2, 1, 2, 2, Q("90 mm")))
sketch8.addConstraint(Sketcher.Constraint("Angle", 1, Q("59 deg")))
sketch8.addConstraint(Sketcher.Constraint("DistanceY", 3, 2, 3, 1, Q("4.2 mm")))
sketch8.addConstraint(Sketcher.Constraint("DistanceY", -1, 1, 0, 2, Q("196 mm")))
sketch8.setExpression("Constraints[11]", "Params.sketch8_width")
sketch8.setExpression("Constraints[13]", "Params.sketch8_height")
groove3 = doc.addObject("PartDesign::Groove", "Groove002")
body.addObject(groove3)
groove3.Profile = sketch8
groove3.ReferenceAxis = (sketch8, ["Axis0"])
groove3.setExpression("Angle", "Params.groove3_angle")

sketch9 = doc.addObject("Sketcher::SketchObject", "Sketch008")
body.addObject(sketch9)
sketch9.AttachmentSupport = (doc.YZ_Plane, [""])
sketch9.MapMode = "FlatFace"
sketch9.AttachmentOffset = App.Placement(App.Vector(0, 0, 241.622918), App.Rotation())
add_polygon(sketch9, [(0, 279), (-92.5, 279), (-90, 283.2), (0, 283.2)])
sketch9.addGeometry(Part.LineSegment(App.Vector(-92.5, 279, 0), App.Vector(0, 279, 0)), True)
sketch9.addConstraint(Sketcher.Constraint("Horizontal", 0))
sketch9.addConstraint(Sketcher.Constraint("Horizontal", 2))
sketch9.addConstraint(Sketcher.Constraint("Vertical", 3))
sketch9.addConstraint(Sketcher.Constraint("Horizontal", 4))
sketch9.addConstraint(Sketcher.Constraint("Coincident", 4, 1, 0, 2))
sketch9.addConstraint(Sketcher.Constraint("PointOnObject", 2, 2, -2))
sketch9.addConstraint(Sketcher.Constraint("PointOnObject", 4, 2, -2))
sketch9.addConstraint(Sketcher.Constraint("DistanceX", 2, 1, 2, 2, Q("90 mm")))
sketch9.addConstraint(Sketcher.Constraint("Angle", 1, Q("59 deg")))
sketch9.addConstraint(Sketcher.Constraint("DistanceY", 3, 2, 3, 1, Q("4.2 mm")))
sketch9.addConstraint(Sketcher.Constraint("DistanceY", -1, 1, 0, 2, Q("279 mm")))
sketch9.setExpression("Constraints[11]", "Params.sketch9_width")
sketch9.setExpression("Constraints[13]", "Params.sketch9_height")
groove4 = doc.addObject("PartDesign::Groove", "Groove003")
body.addObject(groove4)
groove4.Profile = sketch9
groove4.ReferenceAxis = (sketch9, ["Axis0"])
groove4.setExpression("Angle", "Params.groove4_angle")

sketch10 = doc.addObject("Sketcher::SketchObject", "Sketch009")
body.addObject(sketch10)
sketch10.AttachmentSupport = (doc.YZ_Plane, [""])
sketch10.MapMode = "FlatFace"
sketch10.AttachmentOffset = App.Placement(App.Vector(0, 0, 241.622918), App.Rotation())
add_polygon(sketch10, [(0, 362), (-92.5, 362), (-90, 366.2), (0, 366.2)])
sketch10.addGeometry(Part.LineSegment(App.Vector(-92.5, 362, 0), App.Vector(0, 362, 0)), True)
sketch10.addConstraint(Sketcher.Constraint("Horizontal", 0))
sketch10.addConstraint(Sketcher.Constraint("Horizontal", 2))
sketch10.addConstraint(Sketcher.Constraint("Vertical", 3))
sketch10.addConstraint(Sketcher.Constraint("Horizontal", 4))
sketch10.addConstraint(Sketcher.Constraint("Coincident", 4, 1, 0, 2))
sketch10.addConstraint(Sketcher.Constraint("PointOnObject", 2, 2, -2))
sketch10.addConstraint(Sketcher.Constraint("PointOnObject", 4, 2, -2))
sketch10.addConstraint(Sketcher.Constraint("DistanceX", 2, 1, 2, 2, Q("90 mm")))
sketch10.addConstraint(Sketcher.Constraint("Angle", 1, Q("59 deg")))
sketch10.addConstraint(Sketcher.Constraint("DistanceY", 3, 2, 3, 1, Q("4.2 mm")))
sketch10.addConstraint(Sketcher.Constraint("DistanceY", -1, 1, 0, 2, Q("362 mm")))
sketch10.setExpression("Constraints[11]", "Params.sketch10_width")
sketch10.setExpression("Constraints[13]", "Params.sketch10_height")
groove5 = doc.addObject("PartDesign::Groove", "Groove004")
body.addObject(groove5)
groove5.Profile = sketch10
groove5.ReferenceAxis = (sketch10, ["Axis0"])
groove5.setExpression("Angle", "Params.groove5_angle")

sketch11 = doc.addObject("Sketcher::SketchObject", "Sketch010")
body.addObject(sketch11)
sketch11.AttachmentSupport = (doc.YZ_Plane, [""])
sketch11.MapMode = "FlatFace"
sketch11.AttachmentOffset = App.Placement(App.Vector(0, 0, 241.622918), App.Rotation())
add_polygon(sketch11, [(0, 445), (-92.5, 445), (-90, 449.2), (0, 449.2)])
sketch11.addGeometry(Part.LineSegment(App.Vector(-92.5, 445, 0), App.Vector(0, 445, 0)), True)
sketch11.addConstraint(Sketcher.Constraint("Horizontal", 0))
sketch11.addConstraint(Sketcher.Constraint("Horizontal", 2))
sketch11.addConstraint(Sketcher.Constraint("Vertical", 3))
sketch11.addConstraint(Sketcher.Constraint("Horizontal", 4))
sketch11.addConstraint(Sketcher.Constraint("Coincident", 4, 1, 0, 2))
sketch11.addConstraint(Sketcher.Constraint("PointOnObject", 2, 2, -2))
sketch11.addConstraint(Sketcher.Constraint("PointOnObject", 4, 2, -2))
sketch11.addConstraint(Sketcher.Constraint("DistanceX", 2, 1, 2, 2, Q("90 mm")))
sketch11.addConstraint(Sketcher.Constraint("Angle", 1, Q("59 deg")))
sketch11.addConstraint(Sketcher.Constraint("DistanceY", 3, 2, 3, 1, Q("4.2 mm")))
sketch11.addConstraint(Sketcher.Constraint("DistanceY", -1, 1, 0, 2, Q("445 mm")))
sketch11.setExpression("Constraints[11]", "Params.sketch11_width")
sketch11.setExpression("Constraints[13]", "Params.sketch11_height")
groove6 = doc.addObject("PartDesign::Groove", "Groove005")
body.addObject(groove6)
groove6.Profile = sketch11
groove6.ReferenceAxis = (sketch11, ["Axis0"])
groove6.setExpression("Angle", "Params.groove6_angle")

doc.recompute()
